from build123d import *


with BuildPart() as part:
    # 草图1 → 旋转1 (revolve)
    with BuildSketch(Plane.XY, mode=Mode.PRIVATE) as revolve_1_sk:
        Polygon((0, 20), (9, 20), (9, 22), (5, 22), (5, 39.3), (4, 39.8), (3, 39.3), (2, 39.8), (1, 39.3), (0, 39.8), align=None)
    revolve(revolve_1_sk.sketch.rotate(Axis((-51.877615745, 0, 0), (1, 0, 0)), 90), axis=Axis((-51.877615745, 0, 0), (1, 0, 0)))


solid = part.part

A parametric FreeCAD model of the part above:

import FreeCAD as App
import Part
import Sketcher
Q = App.Units.Quantity

doc = App.newDocument("Part")
body = doc.addObject("PartDesign::Body", "Body")

# Sketch on XY plane
sketch1 = doc.addObject("Sketcher::SketchObject", "Sketch")
body.addObject(sketch1)
sketch1.AttachmentSupport = (doc.XY_Plane, [""])
sketch1.MapMode = "FlatFace"
sketch1.addGeometry(Part.LineSegment(App.Vector(0, 20, 0), App.Vector(9, 20, 0)), False)
sketch1.addGeometry(Part.LineSegment(App.Vector(9, 20, 0), App.Vector(9, 22, 0)), False)
sketch1.addGeometry(Part.LineSegment(App.Vector(9, 22, 0), App.Vector(5, 22, 0)), False)
sketch1.addGeometry(Part.LineSegment(App.Vector(5, 22, 0), App.Vector(5, 39.3, 0)), False)
sketch1.addGeometry(Part.LineSegment(App.Vector(5, 39.3, 0), App.Vector(4, 39.8, 0)), False)
sketch1.addGeometry(Part.LineSegment(App.Vector(4, 39.8, 0), App.Vector(3, 39.3, 0)), False)
sketch1.addGeometry(Part.LineSegment(App.Vector(3, 39.3, 0), App.Vector(2, 39.8, 0)), False)
sketch1.addGeometry(Part.LineSegment(App.Vector(2, 39.8, 0), App.Vector(1, 39.3, 0)), False)
sketch1.addGeometry(Part.LineSegment(App.Vector(1, 39.3, 0), App.Vector(0, 39.8, 0)), False)
sketch1.addGeometry(Part.LineSegment(App.Vector(0, 39.8, 0), App.Vector(0, 20, 0)), False)
sketch1.addConstraint(Sketcher.Constraint("Coincident", 0, 2, 1, 1))
sketch1.addConstraint(Sketcher.Constraint("Coincident", 1, 2, 2, 1))
sketch1.addConstraint(Sketcher.Constraint("Coincident", 2, 2, 3, 1))
sketch1.addConstraint(Sketcher.Constraint("Coincident", 3, 2, 4, 1))
sketch1.addConstraint(Sketcher.Constraint("Coincident", 4, 2, 5, 1))
sketch1.addConstraint(Sketcher.Constraint("Coincident", 5, 2, 6, 1))
sketch1.addConstraint(Sketcher.Constraint("Coincident", 6, 2, 7, 1))
sketch1.addConstraint(Sketcher.Constraint("Coincident", 7, 2, 8, 1))
sketch1.addConstraint(Sketcher.Constraint("Coincident", 8, 2, 9, 1))
sketch1.addConstraint(Sketcher.Constraint("Coincident", 9, 2, 0, 1))
sketch1.addConstraint(Sketcher.Constraint("Horizontal", 0))
sketch1.addConstraint(Sketcher.Constraint("Vertical", 1))
sketch1.addConstraint(Sketcher.Constraint("Horizontal", 2))
sketch1.addConstraint(Sketcher.Constraint("Vertical", 3))
sketch1.addConstraint(Sketcher.Constraint("Vertical", 9))
sketch1.addConstraint(Sketcher.Constraint("PointOnObject", 8, 2, -2))
sketch1.addConstraint(Sketcher.Constraint("Parallel", 4, 6))
sketch1.addConstraint(Sketcher.Constraint("Parallel", 5, 7))
sketch1.addConstraint(Sketcher.Constraint("Parallel", 6, 8))
sketch1.addConstraint(Sketcher.Constraint("Horizontal", 3, 2, 5, 2))
sketch1.addConstraint(Sketcher.Constraint("Horizontal", 4, 2, 6, 2))
sketch1.addConstraint(Sketcher.Constraint("Horizontal", 5, 2, 7, 2))
sketch1.addConstraint(Sketcher.Constraint("Horizontal", 6, 2, 8, 2))
sketch1.addConstraint(Sketcher.Constraint("Equal", 4, 5))
sketch1.addConstraint(Sketcher.Constraint("DistanceX", 0, 1, 0, 2, Q("9 mm")))
sketch1.addConstraint(Sketcher.Constraint("DistanceX", 2, 2, 2, 1, Q("4 mm")))
sketch1.addConstraint(Sketcher.Constraint("DistanceY", 1, 1, 1, 2, Q("2 mm")))
sketch1.addConstraint(Sketcher.Constraint("DistanceY", 3, 1, 3, 2, Q("17.3 mm")))
sketch1.addConstraint(Sketcher.Constraint("DistanceY", 9, 2, 9, 1, Q("19.8 mm")))
sketch1.addConstraint(Sketcher.Constraint("DistanceY", -1, 1, 0, 2, Q("20 mm")))
revolution = doc.addObject("PartDesign::Revolution", "Revolution")
body.addObject(revolution)
revolution.Profile = sketch1
revolution.ReferenceAxis = (sketch1, ["H_Axis"])
revolution.Angle = 360

doc.recompute()
